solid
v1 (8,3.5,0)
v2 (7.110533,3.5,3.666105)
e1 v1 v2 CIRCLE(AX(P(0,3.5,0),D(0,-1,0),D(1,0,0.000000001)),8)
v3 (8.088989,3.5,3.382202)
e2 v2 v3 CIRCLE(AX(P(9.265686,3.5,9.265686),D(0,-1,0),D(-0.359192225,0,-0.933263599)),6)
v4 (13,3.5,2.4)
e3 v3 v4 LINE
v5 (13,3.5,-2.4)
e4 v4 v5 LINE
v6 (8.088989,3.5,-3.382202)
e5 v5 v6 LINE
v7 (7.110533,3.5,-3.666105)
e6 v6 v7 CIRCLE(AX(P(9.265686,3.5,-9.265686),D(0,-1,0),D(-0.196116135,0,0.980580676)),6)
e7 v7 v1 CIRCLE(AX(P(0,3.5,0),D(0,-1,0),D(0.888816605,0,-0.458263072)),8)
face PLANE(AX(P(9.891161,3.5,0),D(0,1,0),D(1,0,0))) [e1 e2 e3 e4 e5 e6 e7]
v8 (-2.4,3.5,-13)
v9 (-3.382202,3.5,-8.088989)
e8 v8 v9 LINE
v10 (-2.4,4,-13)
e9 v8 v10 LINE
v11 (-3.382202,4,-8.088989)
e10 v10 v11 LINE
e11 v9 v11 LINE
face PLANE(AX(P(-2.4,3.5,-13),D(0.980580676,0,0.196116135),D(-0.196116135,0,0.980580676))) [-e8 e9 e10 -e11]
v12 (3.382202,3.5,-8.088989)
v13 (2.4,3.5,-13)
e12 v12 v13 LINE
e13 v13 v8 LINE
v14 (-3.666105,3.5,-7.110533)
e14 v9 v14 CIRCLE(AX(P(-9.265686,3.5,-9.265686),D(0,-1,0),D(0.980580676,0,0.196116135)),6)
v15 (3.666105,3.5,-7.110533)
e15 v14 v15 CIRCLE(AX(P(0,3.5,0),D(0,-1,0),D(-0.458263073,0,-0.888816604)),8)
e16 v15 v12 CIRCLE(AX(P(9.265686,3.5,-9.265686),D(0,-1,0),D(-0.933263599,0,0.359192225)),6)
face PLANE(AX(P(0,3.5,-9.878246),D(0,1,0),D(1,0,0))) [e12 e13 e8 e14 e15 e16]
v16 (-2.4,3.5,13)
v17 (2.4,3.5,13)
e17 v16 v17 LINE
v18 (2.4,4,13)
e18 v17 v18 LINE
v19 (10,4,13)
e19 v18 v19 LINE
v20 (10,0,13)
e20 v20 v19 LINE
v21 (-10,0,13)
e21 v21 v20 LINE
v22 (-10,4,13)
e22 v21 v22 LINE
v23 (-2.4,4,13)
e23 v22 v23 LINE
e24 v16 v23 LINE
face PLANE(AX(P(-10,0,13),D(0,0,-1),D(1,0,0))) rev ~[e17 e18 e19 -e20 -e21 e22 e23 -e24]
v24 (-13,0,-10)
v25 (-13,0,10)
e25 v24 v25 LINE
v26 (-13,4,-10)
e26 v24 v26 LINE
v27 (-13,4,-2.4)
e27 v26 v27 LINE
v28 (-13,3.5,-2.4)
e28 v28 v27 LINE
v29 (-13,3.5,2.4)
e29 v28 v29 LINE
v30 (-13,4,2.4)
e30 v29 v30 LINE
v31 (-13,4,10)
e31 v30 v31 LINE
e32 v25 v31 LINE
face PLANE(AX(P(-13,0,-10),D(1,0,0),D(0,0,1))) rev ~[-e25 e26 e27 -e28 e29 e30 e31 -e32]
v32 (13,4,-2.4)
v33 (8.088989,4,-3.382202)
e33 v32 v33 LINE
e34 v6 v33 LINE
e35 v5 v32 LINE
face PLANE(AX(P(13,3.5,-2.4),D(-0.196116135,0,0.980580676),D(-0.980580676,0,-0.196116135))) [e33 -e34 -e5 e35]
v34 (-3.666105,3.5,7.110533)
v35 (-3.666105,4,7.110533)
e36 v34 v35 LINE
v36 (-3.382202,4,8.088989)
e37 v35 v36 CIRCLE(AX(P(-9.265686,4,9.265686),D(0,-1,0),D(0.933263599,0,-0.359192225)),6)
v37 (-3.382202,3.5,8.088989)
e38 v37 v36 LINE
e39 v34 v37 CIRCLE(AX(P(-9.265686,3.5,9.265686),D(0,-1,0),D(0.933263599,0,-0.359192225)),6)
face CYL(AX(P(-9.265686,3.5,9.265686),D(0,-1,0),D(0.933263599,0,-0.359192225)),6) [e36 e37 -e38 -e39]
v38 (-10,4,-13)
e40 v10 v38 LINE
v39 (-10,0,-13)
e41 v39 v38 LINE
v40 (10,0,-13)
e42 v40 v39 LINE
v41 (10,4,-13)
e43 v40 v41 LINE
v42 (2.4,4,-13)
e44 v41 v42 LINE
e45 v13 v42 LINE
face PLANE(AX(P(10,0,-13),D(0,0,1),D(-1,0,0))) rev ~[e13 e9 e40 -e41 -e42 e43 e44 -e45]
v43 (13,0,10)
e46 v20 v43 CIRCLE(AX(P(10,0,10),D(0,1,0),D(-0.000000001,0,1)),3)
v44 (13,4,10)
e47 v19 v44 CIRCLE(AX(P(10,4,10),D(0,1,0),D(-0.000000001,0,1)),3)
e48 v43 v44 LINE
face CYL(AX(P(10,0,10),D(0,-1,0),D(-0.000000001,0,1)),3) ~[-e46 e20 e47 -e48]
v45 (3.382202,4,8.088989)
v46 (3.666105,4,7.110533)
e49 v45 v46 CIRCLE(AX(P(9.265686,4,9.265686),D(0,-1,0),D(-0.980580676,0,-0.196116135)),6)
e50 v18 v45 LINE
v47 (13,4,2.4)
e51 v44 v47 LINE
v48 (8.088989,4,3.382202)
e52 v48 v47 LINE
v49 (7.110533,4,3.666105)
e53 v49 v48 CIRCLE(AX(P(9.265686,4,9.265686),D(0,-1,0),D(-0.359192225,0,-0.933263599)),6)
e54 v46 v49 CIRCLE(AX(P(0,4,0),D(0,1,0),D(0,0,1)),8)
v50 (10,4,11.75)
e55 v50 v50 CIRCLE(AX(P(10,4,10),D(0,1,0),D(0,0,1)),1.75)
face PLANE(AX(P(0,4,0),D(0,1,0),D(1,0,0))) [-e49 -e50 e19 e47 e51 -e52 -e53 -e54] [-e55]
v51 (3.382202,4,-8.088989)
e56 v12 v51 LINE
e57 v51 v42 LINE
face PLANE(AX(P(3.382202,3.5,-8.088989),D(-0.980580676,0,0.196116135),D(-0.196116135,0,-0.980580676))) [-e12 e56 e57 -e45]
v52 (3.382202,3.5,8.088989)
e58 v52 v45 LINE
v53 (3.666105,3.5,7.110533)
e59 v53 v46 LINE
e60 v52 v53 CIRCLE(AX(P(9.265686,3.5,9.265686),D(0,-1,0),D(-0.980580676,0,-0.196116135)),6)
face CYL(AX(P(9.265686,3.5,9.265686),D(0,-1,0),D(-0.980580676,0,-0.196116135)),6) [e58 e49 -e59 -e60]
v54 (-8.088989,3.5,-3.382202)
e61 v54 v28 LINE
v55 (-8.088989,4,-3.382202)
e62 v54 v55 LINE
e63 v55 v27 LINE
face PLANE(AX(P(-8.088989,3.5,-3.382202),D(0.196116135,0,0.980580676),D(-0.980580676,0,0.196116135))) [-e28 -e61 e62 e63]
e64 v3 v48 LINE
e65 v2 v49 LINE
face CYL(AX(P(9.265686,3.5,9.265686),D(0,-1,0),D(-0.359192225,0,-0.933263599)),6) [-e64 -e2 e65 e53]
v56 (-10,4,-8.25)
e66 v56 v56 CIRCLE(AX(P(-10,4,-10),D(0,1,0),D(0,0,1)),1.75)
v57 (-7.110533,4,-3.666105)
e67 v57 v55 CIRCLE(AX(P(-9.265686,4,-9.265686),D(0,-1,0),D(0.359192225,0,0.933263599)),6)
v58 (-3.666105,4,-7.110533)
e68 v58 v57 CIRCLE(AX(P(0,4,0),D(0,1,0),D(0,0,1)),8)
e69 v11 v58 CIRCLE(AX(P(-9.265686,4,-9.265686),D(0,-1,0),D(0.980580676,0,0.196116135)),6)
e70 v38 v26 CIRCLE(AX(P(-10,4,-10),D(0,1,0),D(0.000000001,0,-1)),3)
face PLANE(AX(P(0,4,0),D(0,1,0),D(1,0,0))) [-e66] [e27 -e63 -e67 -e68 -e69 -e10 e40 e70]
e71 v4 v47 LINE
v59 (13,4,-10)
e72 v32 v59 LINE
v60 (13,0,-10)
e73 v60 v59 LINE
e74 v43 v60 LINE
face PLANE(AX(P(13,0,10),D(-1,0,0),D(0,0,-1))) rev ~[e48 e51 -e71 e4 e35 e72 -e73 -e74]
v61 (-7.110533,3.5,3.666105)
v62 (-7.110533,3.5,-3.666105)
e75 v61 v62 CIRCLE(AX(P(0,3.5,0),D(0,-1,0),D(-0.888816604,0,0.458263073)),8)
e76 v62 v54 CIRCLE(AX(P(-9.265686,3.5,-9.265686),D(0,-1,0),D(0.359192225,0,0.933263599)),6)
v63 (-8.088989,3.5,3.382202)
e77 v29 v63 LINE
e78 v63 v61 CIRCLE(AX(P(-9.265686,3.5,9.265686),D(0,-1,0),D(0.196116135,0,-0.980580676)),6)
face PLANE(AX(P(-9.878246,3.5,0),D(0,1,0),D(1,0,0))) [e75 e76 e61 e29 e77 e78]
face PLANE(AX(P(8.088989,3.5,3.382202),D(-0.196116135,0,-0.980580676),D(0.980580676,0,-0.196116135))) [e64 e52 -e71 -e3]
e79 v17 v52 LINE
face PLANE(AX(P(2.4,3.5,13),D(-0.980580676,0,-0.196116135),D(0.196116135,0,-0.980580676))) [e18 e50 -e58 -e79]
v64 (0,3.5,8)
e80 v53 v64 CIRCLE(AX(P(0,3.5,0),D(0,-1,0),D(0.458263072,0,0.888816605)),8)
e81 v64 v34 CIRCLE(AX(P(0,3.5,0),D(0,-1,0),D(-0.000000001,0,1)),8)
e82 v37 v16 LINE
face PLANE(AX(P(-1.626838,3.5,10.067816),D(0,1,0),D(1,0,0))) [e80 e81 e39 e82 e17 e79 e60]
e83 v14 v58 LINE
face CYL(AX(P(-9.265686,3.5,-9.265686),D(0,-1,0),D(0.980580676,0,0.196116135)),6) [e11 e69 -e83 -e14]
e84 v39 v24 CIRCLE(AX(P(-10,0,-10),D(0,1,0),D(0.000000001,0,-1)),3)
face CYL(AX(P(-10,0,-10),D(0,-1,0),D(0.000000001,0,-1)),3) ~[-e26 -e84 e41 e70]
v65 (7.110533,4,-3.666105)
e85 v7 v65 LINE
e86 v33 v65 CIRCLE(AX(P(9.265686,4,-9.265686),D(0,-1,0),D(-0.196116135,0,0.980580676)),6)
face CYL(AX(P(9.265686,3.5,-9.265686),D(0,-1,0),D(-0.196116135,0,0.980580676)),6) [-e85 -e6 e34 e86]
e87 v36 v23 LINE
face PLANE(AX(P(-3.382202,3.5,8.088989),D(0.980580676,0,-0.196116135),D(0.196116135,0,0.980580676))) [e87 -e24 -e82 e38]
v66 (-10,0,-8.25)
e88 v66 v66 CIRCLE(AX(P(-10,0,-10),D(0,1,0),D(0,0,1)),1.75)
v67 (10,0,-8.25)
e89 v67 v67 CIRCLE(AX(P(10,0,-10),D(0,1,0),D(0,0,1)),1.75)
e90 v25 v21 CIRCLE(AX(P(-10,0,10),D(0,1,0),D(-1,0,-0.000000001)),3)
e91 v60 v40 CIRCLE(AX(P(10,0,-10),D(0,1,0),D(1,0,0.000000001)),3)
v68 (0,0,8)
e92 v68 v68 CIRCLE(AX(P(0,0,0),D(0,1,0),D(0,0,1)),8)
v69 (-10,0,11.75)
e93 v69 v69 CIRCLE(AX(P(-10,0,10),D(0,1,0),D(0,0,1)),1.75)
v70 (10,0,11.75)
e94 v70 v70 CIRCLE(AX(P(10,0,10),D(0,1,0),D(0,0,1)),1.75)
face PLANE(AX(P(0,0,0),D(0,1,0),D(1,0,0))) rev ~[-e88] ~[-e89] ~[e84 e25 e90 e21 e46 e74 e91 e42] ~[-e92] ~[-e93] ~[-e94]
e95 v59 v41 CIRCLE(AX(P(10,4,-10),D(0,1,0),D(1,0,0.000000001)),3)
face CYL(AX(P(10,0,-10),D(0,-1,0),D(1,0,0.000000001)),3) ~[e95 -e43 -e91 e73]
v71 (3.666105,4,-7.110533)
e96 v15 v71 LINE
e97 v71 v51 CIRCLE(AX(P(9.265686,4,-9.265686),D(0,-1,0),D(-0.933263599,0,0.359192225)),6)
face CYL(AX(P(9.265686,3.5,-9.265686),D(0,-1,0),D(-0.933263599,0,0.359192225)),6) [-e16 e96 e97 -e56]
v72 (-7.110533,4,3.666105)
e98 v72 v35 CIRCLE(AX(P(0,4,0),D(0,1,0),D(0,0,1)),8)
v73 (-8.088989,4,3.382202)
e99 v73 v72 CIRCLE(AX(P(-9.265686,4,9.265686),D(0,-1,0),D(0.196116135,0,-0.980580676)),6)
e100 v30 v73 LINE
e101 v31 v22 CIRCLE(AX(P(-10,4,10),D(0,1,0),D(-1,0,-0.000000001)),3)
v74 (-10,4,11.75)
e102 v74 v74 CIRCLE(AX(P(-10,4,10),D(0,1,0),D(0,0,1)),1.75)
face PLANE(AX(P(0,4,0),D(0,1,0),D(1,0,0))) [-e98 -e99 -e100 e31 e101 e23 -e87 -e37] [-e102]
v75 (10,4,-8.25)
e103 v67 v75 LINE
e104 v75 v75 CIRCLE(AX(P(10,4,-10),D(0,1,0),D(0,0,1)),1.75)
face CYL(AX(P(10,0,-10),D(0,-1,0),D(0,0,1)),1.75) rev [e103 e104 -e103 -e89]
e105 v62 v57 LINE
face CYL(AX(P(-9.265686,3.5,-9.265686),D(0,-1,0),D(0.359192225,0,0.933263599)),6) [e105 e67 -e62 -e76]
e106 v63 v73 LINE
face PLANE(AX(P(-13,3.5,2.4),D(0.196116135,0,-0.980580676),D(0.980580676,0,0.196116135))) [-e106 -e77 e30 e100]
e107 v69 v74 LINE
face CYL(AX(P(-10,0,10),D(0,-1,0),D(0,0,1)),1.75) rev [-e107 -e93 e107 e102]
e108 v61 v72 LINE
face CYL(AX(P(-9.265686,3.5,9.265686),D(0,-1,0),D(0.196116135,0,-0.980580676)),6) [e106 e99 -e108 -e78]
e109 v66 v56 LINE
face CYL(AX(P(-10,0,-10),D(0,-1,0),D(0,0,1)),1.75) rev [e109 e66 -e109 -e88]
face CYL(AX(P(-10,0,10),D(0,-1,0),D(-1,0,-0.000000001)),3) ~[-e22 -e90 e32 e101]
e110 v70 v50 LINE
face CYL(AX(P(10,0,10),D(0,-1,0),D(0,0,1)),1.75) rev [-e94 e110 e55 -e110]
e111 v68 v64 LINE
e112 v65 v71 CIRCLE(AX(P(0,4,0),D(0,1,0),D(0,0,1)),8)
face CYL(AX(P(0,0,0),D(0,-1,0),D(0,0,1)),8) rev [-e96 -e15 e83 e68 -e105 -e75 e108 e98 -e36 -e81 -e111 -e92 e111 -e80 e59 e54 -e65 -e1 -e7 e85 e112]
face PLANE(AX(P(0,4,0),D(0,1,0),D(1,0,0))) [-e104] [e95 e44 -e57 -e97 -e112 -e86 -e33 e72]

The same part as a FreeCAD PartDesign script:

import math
import FreeCAD as App
import Part
import Sketcher

V = App.Vector

doc = App.newDocument("Part")
body = doc.addObject("PartDesign::Body", "Body")

# Sketch on XZ plane
sketch1 = body.newObject("Sketcher::SketchObject", "Sketch")
sketch1.AttachmentSupport = (doc.getObject("XZ_Plane"), [""])
sketch1.MapMode = "FlatFace"
sketch1.addGeometry([
    Part.LineSegment(V(-13, -10, 0), V(-13, 10, 0)),  # 0
    Part.ArcOfCircle(Part.Circle(V(-10, 10, 0), V(0, 0, 1), 3), math.radians(90), math.radians(180)),  # 1
    Part.LineSegment(V(-10, 13, 0), V(10, 13, 0)),  # 2
    Part.ArcOfCircle(Part.Circle(V(10, 10, 0), V(0, 0, 1), 3), math.radians(0), math.radians(90)),  # 3
    Part.LineSegment(V(13, 10, 0), V(13, -10, 0)),  # 4
    Part.ArcOfCircle(Part.Circle(V(10, -10, 0), V(0, 0, 1), 3), math.radians(-90), math.radians(0)),  # 5
    Part.LineSegment(V(10, -13, 0), V(-10, -13, 0)),  # 6
    Part.ArcOfCircle(Part.Circle(V(-10, -10, 0), V(0, 0, 1), 3), math.radians(180), math.radians(270)),  # 7
    Part.Circle(V(-10, 10, 0), V(0, 0, 1), 1.75),  # 8
    Part.Circle(V(10, 10, 0), V(0, 0, 1), 1.75),  # 9
    Part.Circle(V(-10, -10, 0), V(0, 0, 1), 1.75),  # 10
    Part.Circle(V(0, 0, 0), V(0, 0, 1), 8),  # 11
    Part.Circle(V(10, -10, 0), V(0, 0, 1), 1.75),  # 12
], False)
sketch1.addConstraint([
    Sketcher.Constraint("Tangent", 0, 2, 1, 2),
    Sketcher.Constraint("Tangent", 1, 1, 2, 1),
    Sketcher.Constraint("Tangent", 2, 2, 3, 2),
    Sketcher.Constraint("Tangent", 3, 1, 4, 1),
    Sketcher.Constraint("Tangent", 4, 2, 5, 2),
    Sketcher.Constraint("Tangent", 5, 1, 6, 1),
    Sketcher.Constraint("Tangent", 6, 2, 7, 2),
    Sketcher.Constraint("Tangent", 7, 1, 0, 1),
    Sketcher.Constraint("Vertical", 0),
    Sketcher.Constraint("Horizontal", 2),
    Sketcher.Constraint("Vertical", 4),
    Sketcher.Constraint("Horizontal", 6),
    Sketcher.Constraint("Coincident", 11, 3, -1, 1),
    Sketcher.Constraint("Coincident", 8, 3, 1, 3),
    Sketcher.Constraint("Coincident", 9, 3, 3, 3),
    Sketcher.Constraint("Coincident", 10, 3, 7, 3),
    Sketcher.Constraint("Coincident", 12, 3, 5, 3),
    Sketcher.Constraint("Equal", 1, 3),
    Sketcher.Constraint("Equal", 3, 5),
    Sketcher.Constraint("Equal", 5, 7),
    Sketcher.Constraint("Equal", 8, 9),
    Sketcher.Constraint("Equal", 9, 10),
    Sketcher.Constraint("Equal", 10, 12),
    Sketcher.Constraint("Symmetric", 1, 3, 5, 3, -1, 1),
    Sketcher.Constraint("Equal", 6, 0),
    Sketcher.Constraint("Diameter", 11, 16.0),
    Sketcher.Constraint("Radius", 1, 3.0),
    Sketcher.Constraint("Diameter", 8, 3.5),
    Sketcher.Constraint("DistanceX", 2, 1, 2, 2, 20.0),
])
pad1 = body.newObject("PartDesign::Pad", "Pad")
pad1.Profile = sketch1
pad1.Length = 4
pad1.Reversed = True

# Sketch on XZ plane
sketch2 = body.newObject("Sketcher::SketchObject", "Sketch001")
sketch2.AttachmentSupport = (doc.getObject("XZ_Plane"), [""])
sketch2.MapMode = "FlatFace"
sketch2.AttachmentOffset = App.Placement(V(0, 0, -3.5), App.Rotation())
sketch2.addGeometry([
    Part.ArcOfCircle(Part.Circle(V(-9.265686, 9.265686, 0), V(0, 0, 1), 6), math.radians(-78.690068), math.radians(-68.949404)),  # 0
    Part.ArcOfCircle(Part.Circle(V(0, 0, 0), V(0, 0, 1), 8), math.radians(152.724917), math.radians(207.275083)),  # 1
    Part.ArcOfCircle(Part.Circle(V(-9.265686, -9.265686, 0), V(0, 0, 1), 6), math.radians(68.949404), math.radians(78.690068)),  # 2
    Part.LineSegment(V(-8.088989, -3.382202, 0), V(-13, -2.4, 0)),  # 3
    Part.LineSegment(V(-13, -2.4, 0), V(-13, 2.4, 0)),  # 4
    Part.LineSegment(V(-13, 2.4, 0), V(-8.088989, 3.382202, 0)),  # 5
    Part.ArcOfCircle(Part.Circle(V(-9.265686, -9.265686, 0), V(0, 0, 1), 6), math.radians(11.309932), math.radians(21.050596)),  # 6
    Part.ArcOfCircle(Part.Circle(V(0, 0, 0), V(0, 0, 1), 8), math.radians(-117.275083), math.radians(-62.724917)),  # 7
    Part.ArcOfCircle(Part.Circle(V(9.265686, -9.265686, 0), V(0, 0, 1), 6), math.radians(158.949404), math.radians(168.690068)),  # 8
    Part.LineSegment(V(3.382202, -8.088989, 0), V(2.4, -13, 0)),  # 9
    Part.LineSegment(V(2.4, -13, 0), V(-2.4, -13, 0)),  # 10
    Part.LineSegment(V(-2.4, -13, 0), V(-3.382202, -8.088989, 0)),  # 11
    Part.ArcOfCircle(Part.Circle(V(0, 0, 0), V(0, 0, 1), 8), math.radians(0), math.radians(27.275083)),  # 12
    Part.ArcOfCircle(Part.Circle(V(9.265686, 9.265686, 0), V(0, 0, 1), 6), math.radians(-111.050596), math.radians(-101.309932)),  # 13
    Part.LineSegment(V(8.088989, 3.382202, 0), V(13, 2.4, 0)),  # 14
    Part.LineSegment(V(13, 2.4, 0), V(13, -2.4, 0)),  # 15
    Part.LineSegment(V(13, -2.4, 0), V(8.088989, -3.382202, 0)),  # 16
    Part.ArcOfCircle(Part.Circle(V(9.265686, -9.265686, 0), V(0, 0, 1), 6), math.radians(101.309932), math.radians(111.050596)),  # 17
    Part.ArcOfCircle(Part.Circle(V(0, 0, 0), V(0, 0, 1), 8), math.radians(-27.275083), math.radians(0)),  # 18
    Part.ArcOfCircle(Part.Circle(V(0, 0, 0), V(0, 0, 1), 8), math.radians(90), math.radians(117.275083)),  # 19
    Part.ArcOfCircle(Part.Circle(V(-9.265686, 9.265686, 0), V(0, 0, 1), 6), math.radians(-21.050596), math.radians(-11.309932)),  # 20
    Part.LineSegment(V(-3.382202, 8.088989, 0), V(-2.4, 13, 0)),  # 21
    Part.LineSegment(V(-2.4, 13, 0), V(2.4, 13, 0)),  # 22
    Part.LineSegment(V(2.4, 13, 0), V(3.382202, 8.088989, 0)),  # 23
    Part.ArcOfCircle(Part.Circle(V(9.265686, 9.265686, 0), V(0, 0, 1), 6), math.radians(-168.690068), math.radians(-158.949404)),  # 24
    Part.ArcOfCircle(Part.Circle(V(0, 0, 0), V(0, 0, 1), 8), math.radians(62.724917), math.radians(90)),  # 25
], False)
sketch2.addConstraint([
    Sketcher.Constraint("Coincident", 0, 2, 1, 1),
    Sketcher.Constraint("Coincident", 1, 2, 2, 1),
    Sketcher.Constraint("Tangent", 2, 2, 3, 1),
    Sketcher.Constraint("Coincident", 3, 2, 4, 1),
    Sketcher.Constraint("Coincident", 4, 2, 5, 1),
    Sketcher.Constraint("Tangent", 5, 2, 0, 1),
    Sketcher.Constraint("Coincident", 6, 2, 7, 1),
    Sketcher.Constraint("Coincident", 7, 2, 8, 1),
    Sketcher.Constraint("Tangent", 8, 2, 9, 1),
    Sketcher.Constraint("Coincident", 9, 2, 10, 1),
    Sketcher.Constraint("Coincident", 10, 2, 11, 1),
    Sketcher.Constraint("Tangent", 11, 2, 6, 1),
    Sketcher.Constraint("Coincident", 12, 2, 13, 1),
    Sketcher.Constraint("Tangent", 13, 2, 14, 1),
    Sketcher.Constraint("Coincident", 14, 2, 15, 1),
    Sketcher.Constraint("Coincident", 15, 2, 16, 1),
    Sketcher.Constraint("Tangent", 16, 2, 17, 1),
    Sketcher.Constraint("Coincident", 17, 2, 18, 1),
    Sketcher.Constraint("Tangent", 18, 2, 12, 1),
    Sketcher.Constraint("Coincident", 19, 2, 20, 1),
    Sketcher.Constraint("Tangent", 20, 2, 21, 1),
    Sketcher.Constraint("Coincident", 21, 2, 22, 1),
    Sketcher.Constraint("Coincident", 22, 2, 23, 1),
    Sketcher.Constraint("Tangent", 23, 2, 24, 1),
    Sketcher.Constraint("Coincident", 24, 2, 25, 1),
    Sketcher.Constraint("Tangent", 25, 2, 19, 1),
    Sketcher.Constraint("Vertical", 4),
    Sketcher.Constraint("Horizontal", 10),
    Sketcher.Constraint("Vertical", 15),
    Sketcher.Constraint("Horizontal", 22),
    Sketcher.Constraint("Coincident", 1, 3, -1, 1),
    Sketcher.Constraint("Coincident", 7, 3, -1, 1),
    Sketcher.Constraint("Coincident", 12, 3, -1, 1),
    Sketcher.Constraint("Coincident", 19, 3, -1, 1),
    Sketcher.Constraint("Coincident", 6, 3, 2, 3),
    Sketcher.Constraint("Coincident", 17, 3, 8, 3),
    Sketcher.Constraint("Coincident", 20, 3, 0, 3),
    Sketcher.Constraint("Coincident", 24, 3, 13, 3),
    Sketcher.Constraint("Equal", 0, 2),
    Sketcher.Constraint("Equal", 2, 6),
    Sketcher.Constraint("Equal", 1, 7),
    Sketcher.Constraint("Equal", 6, 8),
    Sketcher.Constraint("Equal", 7, 12),
    Sketcher.Constraint("Equal", 8, 13),
    Sketcher.Constraint("Equal", 13, 17),
    Sketcher.Constraint("Equal", 12, 18),
    Sketcher.Constraint("Equal", 18, 19),
    Sketcher.Constraint("Equal", 17, 20),
    Sketcher.Constraint("Equal", 20, 24),
    Sketcher.Constraint("Equal", 19, 25),
    Sketcher.Constraint("Symmetric", 0, 3, 8, 3, -1, 1),
    Sketcher.Constraint("Symmetric", 2, 3, 13, 3, -1, 1),
    Sketcher.Constraint("Symmetric", 3, 2, 14, 2, -1, 1),
    Sketcher.Constraint("Symmetric", 9, 2, 21, 2, -1, 1),
    Sketcher.Constraint("Symmetric", 2, 3, 8, 3, -2),
    Sketcher.Constraint("PointOnObject", 18, 2, -1),
    Sketcher.Constraint("PointOnObject", 25, 2, -2),
    Sketcher.Constraint("Perpendicular", 3, 9),
    Sketcher.Constraint("Perpendicular", 5, 11),
    Sketcher.Constraint("Perpendicular", 11, 16),
    Sketcher.Constraint("Perpendicular", 16, 23),
    Sketcher.Constraint("Horizontal", 8, 2, 11, 2),
    Sketcher.Constraint("Equal", 22, 4),
    Sketcher.Constraint("Equal", 5, 9),
    Sketcher.Constraint("Radius", 0, 6.0),
    Sketcher.Constraint("Radius", 1, 8.0),
    Sketcher.Constraint("DistanceX", 10, 2, 10, 1, 4.8),
    Sketcher.Constraint("DistanceX", 3, 2, -1, 1, 13.0),
    Sketcher.Constraint("DistanceX", 2, 2, -1, 1, 8.088989),
])
pocket1 = body.newObject("PartDesign::Pocket", "Pocket")
pocket1.Profile = sketch2
pocket1.Length = 0.5

doc.recompute()
